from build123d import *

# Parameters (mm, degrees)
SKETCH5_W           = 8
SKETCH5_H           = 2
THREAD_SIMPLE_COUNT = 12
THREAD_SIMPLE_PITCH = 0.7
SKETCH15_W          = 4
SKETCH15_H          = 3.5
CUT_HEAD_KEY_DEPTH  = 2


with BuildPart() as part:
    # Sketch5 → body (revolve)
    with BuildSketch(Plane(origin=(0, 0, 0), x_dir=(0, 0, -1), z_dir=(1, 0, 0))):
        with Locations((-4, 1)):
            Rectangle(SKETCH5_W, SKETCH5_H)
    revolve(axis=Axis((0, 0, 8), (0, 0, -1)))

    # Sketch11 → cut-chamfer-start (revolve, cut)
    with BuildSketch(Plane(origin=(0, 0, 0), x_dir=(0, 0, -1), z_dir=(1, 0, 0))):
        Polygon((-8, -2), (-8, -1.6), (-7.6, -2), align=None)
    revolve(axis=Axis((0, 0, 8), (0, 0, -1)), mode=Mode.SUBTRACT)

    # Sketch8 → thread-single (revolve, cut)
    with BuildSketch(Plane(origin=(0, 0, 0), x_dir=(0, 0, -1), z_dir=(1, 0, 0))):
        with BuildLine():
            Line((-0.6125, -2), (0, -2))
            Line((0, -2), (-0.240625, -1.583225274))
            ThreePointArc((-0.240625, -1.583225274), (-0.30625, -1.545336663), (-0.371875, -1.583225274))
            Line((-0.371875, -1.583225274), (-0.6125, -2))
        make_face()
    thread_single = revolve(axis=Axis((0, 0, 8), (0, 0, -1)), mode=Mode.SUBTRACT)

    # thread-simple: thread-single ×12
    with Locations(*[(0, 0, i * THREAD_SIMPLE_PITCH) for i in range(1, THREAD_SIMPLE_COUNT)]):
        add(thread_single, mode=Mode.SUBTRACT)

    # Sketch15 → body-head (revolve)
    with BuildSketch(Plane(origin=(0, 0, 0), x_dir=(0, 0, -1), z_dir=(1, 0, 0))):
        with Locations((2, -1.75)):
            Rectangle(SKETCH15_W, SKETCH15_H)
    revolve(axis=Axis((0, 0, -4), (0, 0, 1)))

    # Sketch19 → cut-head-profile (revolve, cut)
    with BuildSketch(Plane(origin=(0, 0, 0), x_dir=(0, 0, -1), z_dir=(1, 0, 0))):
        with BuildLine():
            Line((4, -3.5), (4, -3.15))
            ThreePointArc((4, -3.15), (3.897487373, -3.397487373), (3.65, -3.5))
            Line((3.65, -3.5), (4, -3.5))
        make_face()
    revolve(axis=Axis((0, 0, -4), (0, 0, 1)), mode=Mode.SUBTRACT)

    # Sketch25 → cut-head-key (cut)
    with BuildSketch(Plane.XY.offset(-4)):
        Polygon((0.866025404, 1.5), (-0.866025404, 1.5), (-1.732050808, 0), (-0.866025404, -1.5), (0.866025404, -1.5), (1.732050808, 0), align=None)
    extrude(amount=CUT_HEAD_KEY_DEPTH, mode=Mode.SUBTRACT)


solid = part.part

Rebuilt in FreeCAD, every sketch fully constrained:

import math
import FreeCAD as App
import Part
import Sketcher
Q = App.Units.Quantity


def add_polygon(sketch, points):
    """Adds a closed chain of lines whose ends are joined by coincident constraints."""
    first, n = sketch.GeometryCount, len(points)
    for a, b in zip(points, points[1:] + points[:1]):
        sketch.addGeometry(Part.LineSegment(App.Vector(*a, 0), App.Vector(*b, 0)), False)
    for i in range(n):
        sketch.addConstraint(Sketcher.Constraint("Coincident", first + i, 2, first + (i + 1) % n, 1))

doc = App.newDocument("Part")
body = doc.addObject("PartDesign::Body", "Body")

# Sketch on YZ plane
sketch1 = body.newObject("Sketcher::SketchObject", "Sketch")
sketch1.AttachmentSupport = (doc.getObject("YZ_Plane"), [""])
sketch1.MapMode = "FlatFace"
add_polygon(sketch1, [(2, 8), (0, 8), (0, 0), (2, 0)])  # lines 0-3
sketch1.addConstraint(Sketcher.Constraint("Horizontal", 0))
sketch1.addConstraint(Sketcher.Constraint("Vertical", 1))
sketch1.addConstraint(Sketcher.Constraint("Horizontal", 2))
sketch1.addConstraint(Sketcher.Constraint("Vertical", 3))
sketch1.addConstraint(Sketcher.Constraint("Coincident", 1, 2, -1, 1))
sketch1.addConstraint(Sketcher.Constraint("DistanceX", 0, 2, 0, 1, Q("2 mm")))
sketch1.addConstraint(Sketcher.Constraint("DistanceY", 1, 2, 1, 1, Q("8 mm")))
revolution = body.newObject("PartDesign::Revolution", "Revolution")
revolution.Profile = sketch1
revolution.ReferenceAxis = (sketch1, ["V_Axis"])
revolution.Angle = 360

# Sketch on YZ plane
sketch2 = body.newObject("Sketcher::SketchObject", "Sketch001")
sketch2.AttachmentSupport = (doc.getObject("YZ_Plane"), [""])
sketch2.MapMode = "FlatFace"
add_polygon(sketch2, [(-1.6, 8), (-2, 8), (-2, 7.6)])  # lines 0-2
sketch2.addConstraint(Sketcher.Constraint("Horizontal", 0))
sketch2.addConstraint(Sketcher.Constraint("Vertical", 1))
sketch2.addConstraint(Sketcher.Constraint("Equal", 0, 1))
sketch2.addConstraint(Sketcher.Constraint("DistanceX", 0, 2, 0, 1, Q("0.4 mm")))
sketch2.addConstraint(Sketcher.Constraint("DistanceX", 0, 2, -1, 1, Q("2 mm")))
sketch2.addConstraint(Sketcher.Constraint("DistanceY", -1, 1, 0, 2, Q("8 mm")))
groove = body.newObject("PartDesign::Groove", "Groove")
groove.Profile = sketch2
groove.ReferenceAxis = (sketch2, ["V_Axis"])
groove.Angle = 360

# Sketch on YZ plane
sketch3 = body.newObject("Sketcher::SketchObject", "Sketch002")
sketch3.AttachmentSupport = (doc.getObject("YZ_Plane"), [""])
sketch3.MapMode = "FlatFace"
sketch3.addGeometry(Part.LineSegment(App.Vector(-2, 0.61, 0), App.Vector(-2, 0, 0)), False)
sketch3.addGeometry(Part.LineSegment(App.Vector(-2, 0, 0), App.Vector(-1.58, 0.24, 0)), False)
sketch3.addGeometry(Part.ArcOfCircle(Part.Circle(App.Vector(-1.62, 0.31, 0), App.Vector(0, 0, 1), 0.08), math.radians(-60), math.radians(60)), False)
sketch3.addGeometry(Part.LineSegment(App.Vector(-1.58, 0.37, 0), App.Vector(-2, 0.61, 0)), False)
sketch3.addConstraint(Sketcher.Constraint("Coincident", 0, 2, 1, 1))
sketch3.addConstraint(Sketcher.Constraint("Tangent", 1, 2, 2, 1))
sketch3.addConstraint(Sketcher.Constraint("Tangent", 2, 2, 3, 1))
sketch3.addConstraint(Sketcher.Constraint("Coincident", 3, 2, 0, 1))
sketch3.addConstraint(Sketcher.Constraint("Vertical", 0))
sketch3.addConstraint(Sketcher.Constraint("PointOnObject", 0, 2, -1))
sketch3.addConstraint(Sketcher.Constraint("Vertical", 1, 2, 2, 2))
sketch3.addConstraint(Sketcher.Constraint("Angle", 1, Q("30 deg")))
sketch3.addConstraint(Sketcher.Constraint("DistanceX", 0, 2, -1, 1, Q("2 mm")))
sketch3.addConstraint(Sketcher.Constraint("DistanceY", 0, 2, 0, 1, Q("0.6125 mm")))
sketch3.addConstraint(Sketcher.Constraint("Radius", 2, Q("0.075777 mm")))
groove2 = body.newObject("PartDesign::Groove", "Groove001")
groove2.Profile = sketch3
groove2.ReferenceAxis = (sketch3, ["V_Axis"])
groove2.Angle = 360
doc.recompute()

linearpattern = body.newObject("PartDesign::LinearPattern", "LinearPattern")
linearpattern.Originals = [groove2]
linearpattern.Direction = (doc.getObject("Z_Axis"), [""])
linearpattern.Mode = "offset"
linearpattern.Offset = 0.7
linearpattern.Occurrences = 12
body.Tip = linearpattern

# Sketch on YZ plane
sketch4 = body.newObject("Sketcher::SketchObject", "Sketch003")
sketch4.AttachmentSupport = (doc.getObject("YZ_Plane"), [""])
sketch4.MapMode = "FlatFace"
add_polygon(sketch4, [(0, 0), (-3.5, 0), (-3.5, -4), (0, -4)])  # lines 0-3
sketch4.addConstraint(Sketcher.Constraint("Horizontal", 0))
sketch4.addConstraint(Sketcher.Constraint("Vertical", 1))
sketch4.addConstraint(Sketcher.Constraint("Horizontal", 2))
sketch4.addConstraint(Sketcher.Constraint("Vertical", 3))
sketch4.addConstraint(Sketcher.Constraint("Coincident", 3, 2, -1, 1))
sketch4.addConstraint(Sketcher.Constraint("DistanceY", 1, 2, 1, 1, Q("4 mm")))
sketch4.addConstraint(Sketcher.Constraint("DistanceX", 0, 2, 0, 1, Q("3.5 mm")))
revolution2 = body.newObject("PartDesign::Revolution", "Revolution001")
revolution2.Profile = sketch4
revolution2.ReferenceAxis = (sketch4, ["V_Axis"])
revolution2.Angle = 360

# Sketch on YZ plane
sketch5 = body.newObject("Sketcher::SketchObject", "Sketch004")
sketch5.AttachmentSupport = (doc.getObject("YZ_Plane"), [""])
sketch5.MapMode = "FlatFace"
sketch5.addGeometry(Part.LineSegment(App.Vector(-3.5, -4, 0), App.Vector(-3.15, -4, 0)), False)
sketch5.addGeometry(Part.ArcOfCircle(Part.Circle(App.Vector(-3.15, -3.65, 0), App.Vector(0, 0, 1), 0.35), math.radians(-180), math.radians(-90)), False)
sketch5.addGeometry(Part.LineSegment(App.Vector(-3.5, -3.65, 0), App.Vector(-3.5, -4, 0)), False)
sketch5.addConstraint(Sketcher.Constraint("Tangent", 0, 2, 1, 2))
sketch5.addConstraint(Sketcher.Constraint("Tangent", 1, 1, 2, 1))
sketch5.addConstraint(Sketcher.Constraint("Coincident", 2, 2, 0, 1))
sketch5.addConstraint(Sketcher.Constraint("Horizontal", 0))
sketch5.addConstraint(Sketcher.Constraint("Vertical", 2))
sketch5.addConstraint(Sketcher.Constraint("Radius", 1, Q("0.35 mm")))
sketch5.addConstraint(Sketcher.Constraint("DistanceY", 0, 2, -1, 1, Q("4 mm")))
sketch5.addConstraint(Sketcher.Constraint("DistanceX", 1, 1, -1, 1, Q("3.5 mm")))
groove3 = body.newObject("PartDesign::Groove", "Groove002")
groove3.Profile = sketch5
groove3.ReferenceAxis = (sketch5, ["V_Axis"])
groove3.Angle = 360

# Sketch on XY plane
sketch6 = body.newObject("Sketcher::SketchObject", "Sketch005")
sketch6.AttachmentSupport = (doc.getObject("XY_Plane"), [""])
sketch6.MapMode = "FlatFace"
sketch6.AttachmentOffset = App.Placement(App.Vector(0, 0, -4), App.Rotation())
add_polygon(sketch6, [(0.9, 1.5), (-0.9, 1.5), (-1.7, 0), (-0.9, -1.5), (0.9, -1.5), (1.7, 0)])  # lines 0-5
sketch6.addConstraint(Sketcher.Constraint("Horizontal", 0))
sketch6.addConstraint(Sketcher.Constraint("Horizontal", 3))
sketch6.addConstraint(Sketcher.Constraint("Symmetric", 0, 2, 3, 2, -1, 1))
sketch6.addConstraint(Sketcher.Constraint("Symmetric", 1, 2, 4, 2, -1, 1))
sketch6.addConstraint(Sketcher.Constraint("PointOnObject", 1, 2, -1))
sketch6.addConstraint(Sketcher.Constraint("Parallel", 2, 5))
sketch6.addConstraint(Sketcher.Constraint("Vertical", 0, 2, 2, 2))
sketch6.addConstraint(Sketcher.Constraint("Angle", 1, Q("-120 deg")))
sketch6.addConstraint(Sketcher.Constraint("DistanceY", 2, 2, 0, 2, Q("3 mm")))
sketch6.addConstraint(Sketcher.Constraint("DistanceX", 0, 2, 0, 1, Q("1.732051 mm")))
pocket1 = body.newObject("PartDesign::Pocket", "Pocket")
pocket1.Profile = sketch6
pocket1.Length = 2
pocket1.Reversed = True

doc.recompute()
